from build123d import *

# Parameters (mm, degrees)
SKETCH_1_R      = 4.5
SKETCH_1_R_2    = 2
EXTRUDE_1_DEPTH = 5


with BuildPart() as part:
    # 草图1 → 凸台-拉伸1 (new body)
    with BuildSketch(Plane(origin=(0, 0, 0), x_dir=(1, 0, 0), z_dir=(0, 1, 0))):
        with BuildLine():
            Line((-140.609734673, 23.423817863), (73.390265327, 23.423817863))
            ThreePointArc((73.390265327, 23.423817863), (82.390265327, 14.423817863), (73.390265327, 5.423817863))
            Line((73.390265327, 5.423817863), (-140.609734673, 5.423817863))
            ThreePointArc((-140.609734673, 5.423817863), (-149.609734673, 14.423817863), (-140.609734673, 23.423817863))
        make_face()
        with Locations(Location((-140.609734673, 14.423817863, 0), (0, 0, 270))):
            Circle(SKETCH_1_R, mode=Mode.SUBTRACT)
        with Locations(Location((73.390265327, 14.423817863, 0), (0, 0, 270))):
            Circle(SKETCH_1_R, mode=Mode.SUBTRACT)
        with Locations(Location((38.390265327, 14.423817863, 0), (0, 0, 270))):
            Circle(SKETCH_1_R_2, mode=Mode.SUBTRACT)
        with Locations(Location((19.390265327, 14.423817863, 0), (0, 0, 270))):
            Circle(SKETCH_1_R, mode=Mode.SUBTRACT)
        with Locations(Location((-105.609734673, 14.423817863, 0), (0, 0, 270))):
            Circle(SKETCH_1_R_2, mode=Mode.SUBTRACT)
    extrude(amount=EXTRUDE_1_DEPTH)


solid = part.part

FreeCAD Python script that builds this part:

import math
import FreeCAD as App
import Part
import Sketcher

V = App.Vector

doc = App.newDocument("Part")
params = doc.addObject("Spreadsheet::Sheet", "Params")
for row, (alias, value) in enumerate([
    ("sketch1_diameter", "9 mm"),
    ("sketch1_diameter2", "4 mm"),
    ("sketch1_radius", "9 mm"),
    ("sketch1_width", "214 mm"),
    ("pad1_length", "5 mm"),
], start=1):
    params.set(f"A{row}", alias)
    params.set(f"B{row}", "=" + value)
    params.setAlias(f"B{row}", alias)

body = doc.addObject("PartDesign::Body", "Body")

# Sketch on XZ plane
sketch1 = doc.addObject("Sketcher::SketchObject", "Sketch")
body.addObject(sketch1)
sketch1.AttachmentSupport = (doc.XZ_Plane, [""])
sketch1.MapMode = "FlatFace"
sketch1.addGeometry([
    Part.LineSegment(V(73.4, -23.4, 0), V(-140.6, -23.4, 0)),  # 0
    Part.ArcOfCircle(Part.Circle(V(-140.6, -14.4, 0), V(0, 0, 1), 9), math.radians(90), math.radians(270)),  # 1
    Part.LineSegment(V(-140.6, -5.4, 0), V(73.4, -5.4, 0)),  # 2
    Part.ArcOfCircle(Part.Circle(V(73.4, -14.4, 0), V(0, 0, 1), 9), math.radians(-90), math.radians(90)),  # 3
    Part.Circle(V(73.4, -14.4, 0), V(0, 0, 1), 4.5),  # 4
    Part.Circle(V(38.4, -14.4, 0), V(0, 0, 1), 2),  # 5
    Part.Circle(V(19.4, -14.4, 0), V(0, 0, 1), 4.5),  # 6
    Part.Circle(V(-105.6, -14.4, 0), V(0, 0, 1), 2),  # 7
    Part.Circle(V(-140.6, -14.4, 0), V(0, 0, 1), 4.5),  # 8
], False)
sketch1.addConstraint([
    Sketcher.Constraint("Tangent", 0, 2, 1, 2),
    Sketcher.Constraint("Tangent", 1, 1, 2, 1),
    Sketcher.Constraint("Tangent", 2, 2, 3, 2),
    Sketcher.Constraint("Tangent", 3, 1, 0, 1),
    Sketcher.Constraint("Horizontal", 0),
    Sketcher.Constraint("Horizontal", 2),
    Sketcher.Constraint("Coincident", 4, 3, 3, 3),
    Sketcher.Constraint("Coincident", 8, 3, 1, 3),
    Sketcher.Constraint("Equal", 4, 6),
    Sketcher.Constraint("Equal", 5, 7),
    Sketcher.Constraint("Equal", 6, 8),
    Sketcher.Constraint("Horizontal", 4, 3, 5, 3),
    Sketcher.Constraint("Horizontal", 5, 3, 6, 3),
    Sketcher.Constraint("Horizontal", 6, 3, 7, 3),
    Sketcher.Constraint("Diameter", 4, 9.0),
    Sketcher.Constraint("Diameter", 5, 4.0),
    Sketcher.Constraint("Radius", 1, 9.0),
    Sketcher.Constraint("DistanceX", 0, 2, 0, 1, 214.0),
    Sketcher.Constraint("DistanceX", 5, 3, 3, 3, 35.0),
    Sketcher.Constraint("DistanceX", 6, 3, 5, 3, 19.0),
    Sketcher.Constraint("DistanceX", 1, 3, 7, 3, 35.0),
    Sketcher.Constraint("DistanceX", 1, 3, -1, 1, 140.609735),
    Sketcher.Constraint("DistanceY", 1, 3, -1, 1, 14.423818),
])
sketch1.setExpression("Constraints[14]", "Params.sketch1_diameter")
sketch1.setExpression("Constraints[15]", "Params.sketch1_diameter2")
sketch1.setExpression("Constraints[16]", "Params.sketch1_radius")
sketch1.setExpression("Constraints[17]", "Params.sketch1_width")
pad1 = doc.addObject("PartDesign::Pad", "Pad")
body.addObject(pad1)
pad1.Profile = sketch1
pad1.setExpression("Length", "Params.pad1_length")
pad1.Reversed = True

doc.recompute()
